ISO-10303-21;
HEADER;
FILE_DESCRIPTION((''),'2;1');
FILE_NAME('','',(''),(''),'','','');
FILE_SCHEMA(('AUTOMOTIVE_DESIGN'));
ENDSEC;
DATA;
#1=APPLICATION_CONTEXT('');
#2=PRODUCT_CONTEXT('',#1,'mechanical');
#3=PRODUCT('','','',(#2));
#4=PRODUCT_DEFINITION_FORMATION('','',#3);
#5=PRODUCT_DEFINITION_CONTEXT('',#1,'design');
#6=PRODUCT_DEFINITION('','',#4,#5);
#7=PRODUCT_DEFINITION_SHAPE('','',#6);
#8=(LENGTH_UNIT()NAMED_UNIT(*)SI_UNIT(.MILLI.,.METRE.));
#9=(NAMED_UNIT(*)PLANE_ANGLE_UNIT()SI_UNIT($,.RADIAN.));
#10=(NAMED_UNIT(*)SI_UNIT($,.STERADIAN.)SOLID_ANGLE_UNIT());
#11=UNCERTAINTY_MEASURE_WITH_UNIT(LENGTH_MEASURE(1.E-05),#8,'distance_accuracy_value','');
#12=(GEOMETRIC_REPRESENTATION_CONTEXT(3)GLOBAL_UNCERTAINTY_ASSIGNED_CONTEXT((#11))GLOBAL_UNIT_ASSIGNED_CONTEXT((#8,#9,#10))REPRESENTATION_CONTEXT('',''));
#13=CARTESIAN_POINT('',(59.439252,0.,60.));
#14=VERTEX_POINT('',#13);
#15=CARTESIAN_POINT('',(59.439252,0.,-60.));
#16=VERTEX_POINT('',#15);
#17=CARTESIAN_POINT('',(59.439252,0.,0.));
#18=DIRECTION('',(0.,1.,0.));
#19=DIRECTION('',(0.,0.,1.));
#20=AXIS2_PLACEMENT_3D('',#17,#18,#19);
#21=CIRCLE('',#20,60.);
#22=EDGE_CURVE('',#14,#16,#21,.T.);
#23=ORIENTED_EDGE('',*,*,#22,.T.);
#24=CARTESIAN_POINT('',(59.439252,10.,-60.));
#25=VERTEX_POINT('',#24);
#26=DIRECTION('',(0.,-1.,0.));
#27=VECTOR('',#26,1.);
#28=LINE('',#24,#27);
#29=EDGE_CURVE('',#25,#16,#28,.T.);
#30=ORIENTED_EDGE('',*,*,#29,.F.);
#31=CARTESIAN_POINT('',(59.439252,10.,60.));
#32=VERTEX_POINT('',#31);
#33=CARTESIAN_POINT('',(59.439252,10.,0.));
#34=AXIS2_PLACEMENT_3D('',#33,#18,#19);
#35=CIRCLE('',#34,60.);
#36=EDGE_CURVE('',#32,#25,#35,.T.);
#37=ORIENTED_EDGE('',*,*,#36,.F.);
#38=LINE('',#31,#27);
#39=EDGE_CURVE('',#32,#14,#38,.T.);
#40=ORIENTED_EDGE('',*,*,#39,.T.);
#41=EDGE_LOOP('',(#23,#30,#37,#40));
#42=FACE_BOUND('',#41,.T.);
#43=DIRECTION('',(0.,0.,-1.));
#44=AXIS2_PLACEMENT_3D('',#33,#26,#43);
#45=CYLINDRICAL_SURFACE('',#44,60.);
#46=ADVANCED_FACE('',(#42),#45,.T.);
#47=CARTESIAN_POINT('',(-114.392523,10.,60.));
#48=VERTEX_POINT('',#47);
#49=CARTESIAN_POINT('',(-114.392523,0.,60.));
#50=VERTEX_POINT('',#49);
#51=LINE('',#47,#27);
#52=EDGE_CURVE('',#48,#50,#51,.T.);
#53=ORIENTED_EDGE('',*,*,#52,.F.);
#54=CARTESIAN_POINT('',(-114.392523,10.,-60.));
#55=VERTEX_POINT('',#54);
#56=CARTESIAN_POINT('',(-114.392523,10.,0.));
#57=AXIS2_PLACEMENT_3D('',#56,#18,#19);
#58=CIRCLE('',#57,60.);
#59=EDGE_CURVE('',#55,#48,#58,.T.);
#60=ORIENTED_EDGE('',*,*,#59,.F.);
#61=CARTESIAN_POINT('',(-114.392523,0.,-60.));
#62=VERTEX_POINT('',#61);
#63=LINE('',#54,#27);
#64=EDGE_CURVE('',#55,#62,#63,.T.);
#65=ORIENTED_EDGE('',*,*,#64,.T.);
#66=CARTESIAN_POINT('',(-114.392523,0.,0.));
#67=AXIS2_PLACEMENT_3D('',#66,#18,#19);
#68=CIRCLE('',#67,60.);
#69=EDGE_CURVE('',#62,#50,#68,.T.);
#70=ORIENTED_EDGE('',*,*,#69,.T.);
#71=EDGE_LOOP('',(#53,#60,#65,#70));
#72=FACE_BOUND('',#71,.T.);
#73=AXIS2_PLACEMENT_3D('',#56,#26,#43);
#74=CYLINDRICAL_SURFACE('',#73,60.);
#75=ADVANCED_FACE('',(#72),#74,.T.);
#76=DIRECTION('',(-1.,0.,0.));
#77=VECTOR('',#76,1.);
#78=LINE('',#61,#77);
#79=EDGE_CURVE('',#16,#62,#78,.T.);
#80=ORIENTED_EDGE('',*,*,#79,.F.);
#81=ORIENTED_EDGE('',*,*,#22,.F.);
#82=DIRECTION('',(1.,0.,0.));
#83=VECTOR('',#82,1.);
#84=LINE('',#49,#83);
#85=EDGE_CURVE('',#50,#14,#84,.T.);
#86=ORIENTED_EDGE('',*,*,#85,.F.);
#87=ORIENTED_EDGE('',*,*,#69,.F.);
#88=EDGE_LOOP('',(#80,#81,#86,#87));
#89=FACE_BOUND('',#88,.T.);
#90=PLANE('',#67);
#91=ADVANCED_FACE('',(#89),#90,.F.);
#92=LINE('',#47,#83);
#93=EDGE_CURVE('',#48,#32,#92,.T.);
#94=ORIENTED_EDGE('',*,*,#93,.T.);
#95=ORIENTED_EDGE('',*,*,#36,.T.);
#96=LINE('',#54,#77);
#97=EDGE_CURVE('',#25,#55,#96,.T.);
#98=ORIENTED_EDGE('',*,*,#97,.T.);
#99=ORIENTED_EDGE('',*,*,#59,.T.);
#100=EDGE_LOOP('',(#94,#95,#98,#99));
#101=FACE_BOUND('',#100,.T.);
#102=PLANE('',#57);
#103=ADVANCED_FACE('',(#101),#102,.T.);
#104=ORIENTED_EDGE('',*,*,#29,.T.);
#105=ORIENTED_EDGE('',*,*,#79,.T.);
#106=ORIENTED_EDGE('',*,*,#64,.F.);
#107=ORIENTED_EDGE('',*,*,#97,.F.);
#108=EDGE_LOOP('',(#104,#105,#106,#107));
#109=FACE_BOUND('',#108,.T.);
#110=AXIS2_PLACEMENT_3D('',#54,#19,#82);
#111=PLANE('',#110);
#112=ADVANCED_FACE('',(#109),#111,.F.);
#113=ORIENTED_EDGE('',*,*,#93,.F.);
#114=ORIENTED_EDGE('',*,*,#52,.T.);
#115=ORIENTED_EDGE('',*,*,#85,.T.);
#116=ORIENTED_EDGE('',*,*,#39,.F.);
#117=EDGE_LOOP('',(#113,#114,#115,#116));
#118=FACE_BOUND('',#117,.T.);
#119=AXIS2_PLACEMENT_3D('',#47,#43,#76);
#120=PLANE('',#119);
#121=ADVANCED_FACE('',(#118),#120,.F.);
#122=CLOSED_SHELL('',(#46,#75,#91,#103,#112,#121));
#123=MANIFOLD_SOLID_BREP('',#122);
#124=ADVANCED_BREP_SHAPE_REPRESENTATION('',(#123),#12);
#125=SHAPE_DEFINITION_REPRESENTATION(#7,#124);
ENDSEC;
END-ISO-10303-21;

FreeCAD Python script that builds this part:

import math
import FreeCAD as App
import Part
import Sketcher
from FreeCAD import Vector

doc = App.newDocument("Part")
params = doc.addObject("Spreadsheet::Sheet", "Params")
for row, (alias, value) in enumerate([
    ("sketch1_radius", "60 mm"),
    ("pad1_length", "10 mm"),
], start=1):
    params.set(f"A{row}", alias)
    params.set(f"B{row}", "=" + value)
    params.setAlias(f"B{row}", alias)

body = doc.addObject("PartDesign::Body", "Body")

# Sketch on XZ plane
sketch1 = body.newObject("Sketcher::SketchObject", "Sketch")
sketch1.AttachmentSupport = (doc.getObject("XZ_Plane"), [""])
sketch1.MapMode = "FlatFace"
sketch1.addGeometry([
    Part.LineSegment(Vector(59.439252, -60, 0), Vector(-114.392523, -60, 0)),
    Part.ArcOfCircle(Part.Circle(Vector(-114.392523, 0, 0), Vector(0, 0, 1), 60), math.radians(90), math.radians(270)),
    Part.LineSegment(Vector(-114.392523, 60, 0), Vector(59.439252, 60, 0)),
    Part.ArcOfCircle(Part.Circle(Vector(59.439252, 0, 0), Vector(0, 0, 1), 60), math.radians(-90), math.radians(90)),
], False)
sketch1.addConstraint([
    Sketcher.Constraint("Tangent", 0, 2, 1, 2),
    Sketcher.Constraint("Tangent", 1, 1, 2, 1),
    Sketcher.Constraint("Tangent", 2, 2, 3, 2),
    Sketcher.Constraint("Tangent", 3, 1, 0, 1),
    Sketcher.Constraint("Horizontal", 0),
    Sketcher.Constraint("Horizontal", 2),
    Sketcher.Constraint("PointOnObject", 1, 3, -1),
    Sketcher.Constraint("Radius", 1, 60.0),
    Sketcher.Constraint("DistanceX", 0, 2, 0, 1, 173.831776),
    Sketcher.Constraint("DistanceX", 1, 3, -1, 1, 114.392523),
])
sketch1.setExpression("Constraints[7]", "Params.sketch1_radius")
pad1 = body.newObject("PartDesign::Pad", "Pad")
pad1.Profile = sketch1
pad1.setExpression("Length", "Params.pad1_length")
pad1.Reversed = True

doc.recompute()
